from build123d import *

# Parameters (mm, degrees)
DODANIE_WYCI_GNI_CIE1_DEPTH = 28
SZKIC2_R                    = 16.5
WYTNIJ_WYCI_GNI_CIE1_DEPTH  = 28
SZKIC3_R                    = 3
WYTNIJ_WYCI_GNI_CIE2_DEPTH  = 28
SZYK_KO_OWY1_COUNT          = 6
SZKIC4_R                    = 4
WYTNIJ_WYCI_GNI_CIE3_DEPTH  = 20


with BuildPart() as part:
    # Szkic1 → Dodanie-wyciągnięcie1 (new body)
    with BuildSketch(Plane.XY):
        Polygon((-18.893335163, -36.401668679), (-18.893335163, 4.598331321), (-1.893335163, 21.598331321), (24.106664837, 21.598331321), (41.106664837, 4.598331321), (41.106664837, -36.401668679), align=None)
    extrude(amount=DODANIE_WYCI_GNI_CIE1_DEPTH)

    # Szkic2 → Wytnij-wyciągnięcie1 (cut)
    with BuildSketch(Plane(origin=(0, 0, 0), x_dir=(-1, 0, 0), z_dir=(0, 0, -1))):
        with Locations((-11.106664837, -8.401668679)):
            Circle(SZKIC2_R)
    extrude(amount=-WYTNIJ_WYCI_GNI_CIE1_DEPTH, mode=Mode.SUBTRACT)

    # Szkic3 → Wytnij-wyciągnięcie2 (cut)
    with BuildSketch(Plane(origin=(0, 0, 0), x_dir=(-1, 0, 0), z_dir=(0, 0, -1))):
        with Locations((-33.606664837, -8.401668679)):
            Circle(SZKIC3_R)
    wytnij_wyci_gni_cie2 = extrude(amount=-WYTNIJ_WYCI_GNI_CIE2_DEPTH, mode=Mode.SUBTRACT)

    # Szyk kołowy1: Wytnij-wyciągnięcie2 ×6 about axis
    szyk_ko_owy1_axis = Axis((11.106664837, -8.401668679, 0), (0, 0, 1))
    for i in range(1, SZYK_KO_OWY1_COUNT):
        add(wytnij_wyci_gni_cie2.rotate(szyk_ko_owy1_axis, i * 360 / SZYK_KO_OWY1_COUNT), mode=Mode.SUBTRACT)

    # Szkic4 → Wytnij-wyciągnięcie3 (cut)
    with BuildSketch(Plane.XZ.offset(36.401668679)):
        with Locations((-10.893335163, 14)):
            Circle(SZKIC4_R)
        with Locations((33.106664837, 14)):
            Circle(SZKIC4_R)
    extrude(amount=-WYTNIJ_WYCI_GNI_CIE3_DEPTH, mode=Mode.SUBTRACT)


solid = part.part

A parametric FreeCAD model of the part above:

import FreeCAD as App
import Part
import Sketcher
from FreeCAD import Vector
Q = App.Units.Quantity


def add_polygon(sketch, points):
    """Adds a closed chain of lines whose ends are joined by coincident constraints."""
    first, n = sketch.GeometryCount, len(points)
    for a, b in zip(points, points[1:] + points[:1]):
        sketch.addGeometry(Part.LineSegment(App.Vector(*a, 0), App.Vector(*b, 0)), False)
    for i in range(n):
        sketch.addConstraint(Sketcher.Constraint("Coincident", first + i, 2, first + (i + 1) % n, 1))

doc = App.newDocument("Part")
body = doc.addObject("PartDesign::Body", "Body")

sketch1 = body.newObject("Sketcher::SketchObject", "Sketch")
sketch1.AttachmentSupport = (doc.getObject("XY_Plane"), [""])
sketch1.MapMode = "FlatFace"
add_polygon(sketch1, [(-18.893335, 4.598331), (-18.893335, -36.401669), (41.106665, -36.401669), (41.106665, 4.598331), (24.106665, 21.598331), (-1.893335, 21.598331)])
sketch1.addConstraint(Sketcher.Constraint("Vertical", 0))
sketch1.addConstraint(Sketcher.Constraint("Horizontal", 1))
sketch1.addConstraint(Sketcher.Constraint("Vertical", 2))
sketch1.addConstraint(Sketcher.Constraint("Horizontal", 4))
sketch1.addConstraint(Sketcher.Constraint("Perpendicular", 3, 5))
sketch1.addConstraint(Sketcher.Constraint("Horizontal", 2, 2, 5, 2))
sketch1.addConstraint(Sketcher.Constraint("Equal", 3, 5))
sketch1.addConstraint(Sketcher.Constraint("DistanceX", 1, 1, 1, 2, Q("60 mm")))
sketch1.addConstraint(Sketcher.Constraint("DistanceX", 4, 2, 4, 1, Q("26 mm")))
sketch1.addConstraint(Sketcher.Constraint("DistanceY", 0, 2, 0, 1, Q("41 mm")))
sketch1.addConstraint(Sketcher.Constraint("DistanceY", 0, 2, -1, 1, Q("36.401669 mm")))
sketch1.addConstraint(Sketcher.Constraint("DistanceX", 0, 2, -1, 1, Q("18.893335 mm")))
pad1 = body.newObject("PartDesign::Pad", "Pad")
pad1.Profile = sketch1
pad1.Length = 28

sketch2 = body.newObject("Sketcher::SketchObject", "Sketch001")
sketch2.AttachmentSupport = (doc.getObject("XY_Plane"), [""])
sketch2.MapMode = "FlatFace"
sketch2.addGeometry(Part.Circle(Vector(11.106665, -8.401669, 0), Vector(0, 0, 1), 16.5), False)
sketch2.addConstraint(Sketcher.Constraint("Diameter", 0, Q("33 mm")))
sketch2.addConstraint(Sketcher.Constraint("DistanceY", 0, 3, -1, 1, Q("8.401669 mm")))
sketch2.addConstraint(Sketcher.Constraint("DistanceX", -1, 1, 0, 3, Q("11.106665 mm")))
pocket1 = body.newObject("PartDesign::Pocket", "Pocket")
pocket1.Profile = sketch2
pocket1.Length = 28
pocket1.Reversed = True

sketch3 = body.newObject("Sketcher::SketchObject", "Sketch002")
sketch3.AttachmentSupport = (doc.getObject("XY_Plane"), [""])
sketch3.MapMode = "FlatFace"
sketch3.addGeometry(Part.Circle(Vector(33.606665, -8.401669, 0), Vector(0, 0, 1), 3), False)
sketch3.addConstraint(Sketcher.Constraint("Diameter", 0, Q("6 mm")))
sketch3.addConstraint(Sketcher.Constraint("DistanceY", 0, 3, -1, 1, Q("8.401669 mm")))
sketch3.addConstraint(Sketcher.Constraint("DistanceX", -1, 1, 0, 3, Q("33.606665 mm")))
pocket2 = body.newObject("PartDesign::Pocket", "Pocket001")
pocket2.Profile = sketch3
pocket2.Length = 28
pocket2.Reversed = True
doc.recompute()

datumline = body.newObject("PartDesign::Line", "DatumLine")
datumline.Placement = App.Placement(Vector(11.106665, -8.401669, 0), App.Rotation(Vector(0, 0, 1), Vector(0, 0, 1)))
polarpattern = body.newObject("PartDesign::PolarPattern", "PolarPattern")
polarpattern.Originals = [pocket2]
polarpattern.Axis = (datumline, [""])
polarpattern.Angle = 360
polarpattern.Occurrences = 6
body.Tip = polarpattern

sketch4 = body.newObject("Sketcher::SketchObject", "Sketch003")
sketch4.AttachmentSupport = (doc.getObject("XZ_Plane"), [""])
sketch4.MapMode = "FlatFace"
sketch4.AttachmentOffset = App.Placement(Vector(0, 0, 36.401669), App.Rotation())
sketch4.addGeometry(Part.Circle(Vector(-10.893335, 14, 0), Vector(0, 0, 1), 4), False)
sketch4.addGeometry(Part.Circle(Vector(33.106665, 14, 0), Vector(0, 0, 1), 4), False)
sketch4.addConstraint(Sketcher.Constraint("Equal", 0, 1))
sketch4.addConstraint(Sketcher.Constraint("Horizontal", 0, 3, 1, 3))
sketch4.addConstraint(Sketcher.Constraint("Diameter", 0, Q("8 mm")))
sketch4.addConstraint(Sketcher.Constraint("DistanceY", -1, 1, 0, 3, Q("14 mm")))
sketch4.addConstraint(Sketcher.Constraint("DistanceX", 0, 3, 1, 3, Q("44 mm")))
sketch4.addConstraint(Sketcher.Constraint("DistanceX", 0, 3, -1, 1, Q("10.893335 mm")))
pocket3 = body.newObject("PartDesign::Pocket", "Pocket002")
pocket3.Profile = sketch4
pocket3.Length = 20

doc.recompute()
